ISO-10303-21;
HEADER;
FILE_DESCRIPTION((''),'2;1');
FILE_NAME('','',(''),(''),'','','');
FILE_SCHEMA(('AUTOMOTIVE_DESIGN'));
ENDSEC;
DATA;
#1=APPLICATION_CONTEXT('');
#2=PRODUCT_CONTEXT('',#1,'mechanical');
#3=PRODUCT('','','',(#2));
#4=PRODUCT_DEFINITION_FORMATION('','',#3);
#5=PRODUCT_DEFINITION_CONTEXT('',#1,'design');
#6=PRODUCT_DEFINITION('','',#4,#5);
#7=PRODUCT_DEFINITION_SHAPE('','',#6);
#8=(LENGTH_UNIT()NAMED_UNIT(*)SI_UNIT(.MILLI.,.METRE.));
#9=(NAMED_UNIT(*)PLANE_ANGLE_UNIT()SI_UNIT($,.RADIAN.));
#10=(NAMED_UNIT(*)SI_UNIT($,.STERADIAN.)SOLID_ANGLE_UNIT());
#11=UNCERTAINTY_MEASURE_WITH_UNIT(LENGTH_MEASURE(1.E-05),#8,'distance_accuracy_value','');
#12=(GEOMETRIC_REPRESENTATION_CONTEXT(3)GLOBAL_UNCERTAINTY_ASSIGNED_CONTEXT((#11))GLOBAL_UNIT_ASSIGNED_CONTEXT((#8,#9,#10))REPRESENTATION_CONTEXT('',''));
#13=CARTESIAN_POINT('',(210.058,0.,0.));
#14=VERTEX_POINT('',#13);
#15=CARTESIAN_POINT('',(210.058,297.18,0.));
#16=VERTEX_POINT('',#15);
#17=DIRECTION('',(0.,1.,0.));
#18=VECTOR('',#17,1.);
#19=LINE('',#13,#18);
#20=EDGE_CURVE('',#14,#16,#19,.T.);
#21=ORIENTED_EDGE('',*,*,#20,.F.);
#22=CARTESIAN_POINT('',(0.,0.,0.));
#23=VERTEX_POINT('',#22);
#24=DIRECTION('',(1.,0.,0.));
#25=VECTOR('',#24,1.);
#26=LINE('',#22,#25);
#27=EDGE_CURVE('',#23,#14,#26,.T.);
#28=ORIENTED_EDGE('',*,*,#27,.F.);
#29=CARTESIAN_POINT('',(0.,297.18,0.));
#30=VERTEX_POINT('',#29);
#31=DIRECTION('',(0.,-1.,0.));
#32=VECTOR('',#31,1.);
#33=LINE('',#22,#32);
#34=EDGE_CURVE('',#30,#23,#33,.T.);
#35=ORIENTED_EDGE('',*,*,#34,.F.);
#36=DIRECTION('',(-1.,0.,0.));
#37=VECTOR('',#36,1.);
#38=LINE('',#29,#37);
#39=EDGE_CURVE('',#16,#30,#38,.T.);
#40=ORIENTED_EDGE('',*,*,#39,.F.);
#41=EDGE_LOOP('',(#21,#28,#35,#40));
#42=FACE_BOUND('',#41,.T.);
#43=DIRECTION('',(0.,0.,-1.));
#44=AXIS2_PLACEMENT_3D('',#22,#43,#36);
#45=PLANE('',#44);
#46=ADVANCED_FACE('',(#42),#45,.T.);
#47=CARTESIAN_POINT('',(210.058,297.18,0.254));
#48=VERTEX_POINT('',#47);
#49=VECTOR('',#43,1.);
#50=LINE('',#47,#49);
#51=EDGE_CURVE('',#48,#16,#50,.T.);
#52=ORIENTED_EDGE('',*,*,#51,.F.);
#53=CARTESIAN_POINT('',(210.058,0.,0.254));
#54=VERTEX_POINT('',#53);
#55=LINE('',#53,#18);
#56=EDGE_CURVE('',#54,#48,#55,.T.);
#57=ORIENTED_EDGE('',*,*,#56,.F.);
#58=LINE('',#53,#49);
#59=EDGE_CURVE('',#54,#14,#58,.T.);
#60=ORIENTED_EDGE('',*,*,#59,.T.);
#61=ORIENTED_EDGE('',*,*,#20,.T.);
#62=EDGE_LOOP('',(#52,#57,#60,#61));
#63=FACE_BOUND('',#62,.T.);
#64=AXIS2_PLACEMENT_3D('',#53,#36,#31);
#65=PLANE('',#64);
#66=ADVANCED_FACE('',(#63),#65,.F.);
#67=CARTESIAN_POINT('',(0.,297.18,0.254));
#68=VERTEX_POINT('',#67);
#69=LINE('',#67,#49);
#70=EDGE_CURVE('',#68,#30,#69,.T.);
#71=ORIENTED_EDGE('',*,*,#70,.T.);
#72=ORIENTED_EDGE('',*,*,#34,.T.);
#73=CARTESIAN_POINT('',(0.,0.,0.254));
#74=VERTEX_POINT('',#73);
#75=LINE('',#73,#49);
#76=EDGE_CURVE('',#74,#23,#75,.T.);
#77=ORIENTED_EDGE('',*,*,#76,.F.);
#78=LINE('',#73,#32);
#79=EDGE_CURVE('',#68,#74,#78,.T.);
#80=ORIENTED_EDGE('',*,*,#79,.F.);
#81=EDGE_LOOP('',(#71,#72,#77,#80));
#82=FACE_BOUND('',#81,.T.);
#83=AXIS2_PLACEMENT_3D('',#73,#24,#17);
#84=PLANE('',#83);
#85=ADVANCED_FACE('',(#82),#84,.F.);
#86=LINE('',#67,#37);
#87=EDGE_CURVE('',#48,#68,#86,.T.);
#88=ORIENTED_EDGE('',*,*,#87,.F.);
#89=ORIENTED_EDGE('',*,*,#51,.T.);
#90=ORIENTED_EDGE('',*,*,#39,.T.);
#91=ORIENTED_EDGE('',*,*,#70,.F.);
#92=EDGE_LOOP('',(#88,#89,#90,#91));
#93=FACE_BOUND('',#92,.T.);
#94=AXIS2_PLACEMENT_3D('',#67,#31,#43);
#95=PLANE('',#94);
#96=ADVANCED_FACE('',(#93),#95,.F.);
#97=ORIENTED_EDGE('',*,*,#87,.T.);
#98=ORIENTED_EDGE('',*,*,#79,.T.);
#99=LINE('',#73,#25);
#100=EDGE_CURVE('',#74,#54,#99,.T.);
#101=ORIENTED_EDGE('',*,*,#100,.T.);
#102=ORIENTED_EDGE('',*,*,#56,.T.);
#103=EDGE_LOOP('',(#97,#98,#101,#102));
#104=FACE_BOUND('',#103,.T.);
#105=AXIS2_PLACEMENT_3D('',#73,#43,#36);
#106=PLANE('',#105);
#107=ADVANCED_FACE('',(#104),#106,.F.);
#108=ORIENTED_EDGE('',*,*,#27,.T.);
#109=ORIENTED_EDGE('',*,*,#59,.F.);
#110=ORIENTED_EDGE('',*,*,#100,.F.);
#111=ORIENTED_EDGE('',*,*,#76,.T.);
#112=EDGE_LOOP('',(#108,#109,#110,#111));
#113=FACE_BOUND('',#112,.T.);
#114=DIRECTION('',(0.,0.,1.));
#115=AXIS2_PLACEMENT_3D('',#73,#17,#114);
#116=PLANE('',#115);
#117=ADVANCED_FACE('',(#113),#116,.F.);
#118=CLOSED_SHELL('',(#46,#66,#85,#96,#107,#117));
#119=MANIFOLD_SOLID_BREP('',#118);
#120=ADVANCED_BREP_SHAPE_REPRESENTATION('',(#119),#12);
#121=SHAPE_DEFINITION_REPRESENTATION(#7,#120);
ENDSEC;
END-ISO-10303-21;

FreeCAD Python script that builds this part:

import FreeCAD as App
import Part
import Sketcher
from FreeCAD import Vector
Q = App.Units.Quantity

doc = App.newDocument("Part")
body = doc.addObject("PartDesign::Body", "Body")

# Sketch on XY plane
sketch1 = doc.addObject("Sketcher::SketchObject", "Sketch")
body.addObject(sketch1)
sketch1.AttachmentSupport = (doc.XY_Plane, [""])
sketch1.MapMode = "FlatFace"
sketch1.addGeometry([
    Part.LineSegment(Vector(0, 297.18, 0), Vector(0, 0, 0)),
    Part.LineSegment(Vector(0, 0, 0), Vector(210.058, 0, 0)),
    Part.LineSegment(Vector(210.058, 0, 0), Vector(210.058, 297.18, 0)),
    Part.LineSegment(Vector(210.058, 297.18, 0), Vector(0, 297.18, 0)),
], False)
sketch1.addConstraint([
    Sketcher.Constraint("Coincident", 0, 2, 1, 1),
    Sketcher.Constraint("Coincident", 1, 2, 2, 1),
    Sketcher.Constraint("Coincident", 2, 2, 3, 1),
    Sketcher.Constraint("Coincident", 3, 2, 0, 1),
    Sketcher.Constraint("Vertical", 0),
    Sketcher.Constraint("Horizontal", 1),
    Sketcher.Constraint("Vertical", 2),
    Sketcher.Constraint("Horizontal", 3),
    Sketcher.Constraint("Coincident", 0, 2, -1, 1),
    Sketcher.Constraint("DistanceY", 0, 2, 0, 1, Q("11.7 in")),
    Sketcher.Constraint("DistanceX", 1, 1, 1, 2, Q("8.27 in")),
])
pad1 = doc.addObject("PartDesign::Pad", "Pad")
body.addObject(pad1)
pad1.Profile = sketch1
pad1.Length = Q("0.01 in")

doc.recompute()
